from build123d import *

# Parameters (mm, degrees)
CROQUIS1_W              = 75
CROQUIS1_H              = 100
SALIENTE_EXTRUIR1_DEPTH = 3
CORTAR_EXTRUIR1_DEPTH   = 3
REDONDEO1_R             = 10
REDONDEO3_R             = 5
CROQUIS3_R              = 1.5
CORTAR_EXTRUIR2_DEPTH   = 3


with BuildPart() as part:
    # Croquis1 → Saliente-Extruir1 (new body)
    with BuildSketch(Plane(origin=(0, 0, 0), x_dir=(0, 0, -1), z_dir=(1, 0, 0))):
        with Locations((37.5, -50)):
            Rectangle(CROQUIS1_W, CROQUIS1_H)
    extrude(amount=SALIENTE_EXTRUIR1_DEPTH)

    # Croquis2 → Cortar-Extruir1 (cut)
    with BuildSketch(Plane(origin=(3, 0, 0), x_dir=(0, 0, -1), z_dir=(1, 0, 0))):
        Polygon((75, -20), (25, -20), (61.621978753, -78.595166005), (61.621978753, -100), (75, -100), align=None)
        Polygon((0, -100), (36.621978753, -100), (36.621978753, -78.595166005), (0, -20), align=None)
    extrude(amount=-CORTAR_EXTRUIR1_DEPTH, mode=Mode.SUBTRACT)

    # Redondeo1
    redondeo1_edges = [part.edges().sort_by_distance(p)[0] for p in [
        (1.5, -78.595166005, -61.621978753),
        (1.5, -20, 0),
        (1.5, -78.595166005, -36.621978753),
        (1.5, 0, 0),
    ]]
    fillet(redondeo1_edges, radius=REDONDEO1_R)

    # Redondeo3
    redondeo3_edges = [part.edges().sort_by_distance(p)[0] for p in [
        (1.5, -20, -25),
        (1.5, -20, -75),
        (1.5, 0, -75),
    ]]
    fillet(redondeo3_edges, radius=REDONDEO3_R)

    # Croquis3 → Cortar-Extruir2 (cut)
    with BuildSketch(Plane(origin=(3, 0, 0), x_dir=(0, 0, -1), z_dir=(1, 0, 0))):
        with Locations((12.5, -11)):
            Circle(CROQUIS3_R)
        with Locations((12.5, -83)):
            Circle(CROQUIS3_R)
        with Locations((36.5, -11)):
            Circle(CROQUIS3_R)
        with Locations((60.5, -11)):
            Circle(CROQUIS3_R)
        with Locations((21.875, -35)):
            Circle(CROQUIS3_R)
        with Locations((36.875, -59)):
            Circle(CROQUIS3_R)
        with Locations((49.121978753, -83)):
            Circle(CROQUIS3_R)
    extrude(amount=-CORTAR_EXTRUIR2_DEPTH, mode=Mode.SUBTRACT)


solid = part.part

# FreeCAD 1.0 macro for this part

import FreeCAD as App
import Part
import Sketcher
from FreeCAD import Vector


def edges_at(feature, points):
    """Names of the edges that pass closest to the given points."""
    edges = feature.Shape.Edges
    near = lambda p: min(range(len(edges)), key=lambda i: edges[i].distToShape(Part.Vertex(*p))[0])
    return sorted({f"Edge{near(p) + 1}" for p in points})

doc = App.newDocument("Part")
body = doc.addObject("PartDesign::Body", "Body")

sketch1 = body.newObject("Sketcher::SketchObject", "Sketch")
sketch1.AttachmentSupport = (doc.getObject("YZ_Plane"), [""])
sketch1.MapMode = "FlatFace"
sketch1.addGeometry([
    Part.LineSegment(Vector(0, 0, 0), Vector(-100, 0, 0)),
    Part.LineSegment(Vector(-100, 0, 0), Vector(-100, -75, 0)),
    Part.LineSegment(Vector(-100, -75, 0), Vector(0, -75, 0)),
    Part.LineSegment(Vector(0, -75, 0), Vector(0, 0, 0)),
], False)
sketch1.addConstraint([
    Sketcher.Constraint("Coincident", 0, 2, 1, 1),
    Sketcher.Constraint("Coincident", 1, 2, 2, 1),
    Sketcher.Constraint("Coincident", 2, 2, 3, 1),
    Sketcher.Constraint("Coincident", 3, 2, 0, 1),
    Sketcher.Constraint("Horizontal", 0),
    Sketcher.Constraint("Vertical", 1),
    Sketcher.Constraint("Horizontal", 2),
    Sketcher.Constraint("Vertical", 3),
    Sketcher.Constraint("Coincident", 3, 2, -1, 1),
    Sketcher.Constraint("DistanceX", 0, 2, 0, 1, 100.0),
    Sketcher.Constraint("DistanceY", 1, 2, 1, 1, 75.0),
])
pad1 = body.newObject("PartDesign::Pad", "Pad")
pad1.Profile = sketch1
pad1.Length = 3

sketch2 = body.newObject("Sketcher::SketchObject", "Sketch001")
sketch2.AttachmentSupport = (doc.getObject("YZ_Plane"), [""])
sketch2.MapMode = "FlatFace"
sketch2.AttachmentOffset = App.Placement(Vector(0, 0, 3), App.Rotation())
sketch2.addGeometry([
    Part.LineSegment(Vector(-20, -75, 0), Vector(-20, -25, 0)),
    Part.LineSegment(Vector(-20, -25, 0), Vector(-79, -62, 0)),
    Part.LineSegment(Vector(-79, -62, 0), Vector(-100, -62, 0)),
    Part.LineSegment(Vector(-100, -62, 0), Vector(-100, -75, 0)),
    Part.LineSegment(Vector(-100, -75, 0), Vector(-20, -75, 0)),
    Part.LineSegment(Vector(-100, 0, 0), Vector(-100, -37, 0)),
    Part.LineSegment(Vector(-100, -37, 0), Vector(-79, -37, 0)),
    Part.LineSegment(Vector(-79, -37, 0), Vector(-20, 0, 0)),
    Part.LineSegment(Vector(-20, 0, 0), Vector(-100, 0, 0)),
], False)
sketch2.addConstraint([
    Sketcher.Constraint("Coincident", 0, 2, 1, 1),
    Sketcher.Constraint("Coincident", 1, 2, 2, 1),
    Sketcher.Constraint("Coincident", 2, 2, 3, 1),
    Sketcher.Constraint("Coincident", 3, 2, 4, 1),
    Sketcher.Constraint("Coincident", 4, 2, 0, 1),
    Sketcher.Constraint("Coincident", 5, 2, 6, 1),
    Sketcher.Constraint("Coincident", 6, 2, 7, 1),
    Sketcher.Constraint("Coincident", 7, 2, 8, 1),
    Sketcher.Constraint("Coincident", 8, 2, 5, 1),
    Sketcher.Constraint("Vertical", 0),
    Sketcher.Constraint("Horizontal", 2),
    Sketcher.Constraint("Vertical", 3),
    Sketcher.Constraint("Horizontal", 4),
    Sketcher.Constraint("Vertical", 5),
    Sketcher.Constraint("Horizontal", 6),
    Sketcher.Constraint("Horizontal", 8),
    Sketcher.Constraint("PointOnObject", 7, 2, -1),
    Sketcher.Constraint("Parallel", 1, 7),
    Sketcher.Constraint("Vertical", 3, 2, 5, 2),
    Sketcher.Constraint("Vertical", 1, 2, 6, 2),
    Sketcher.Constraint("Vertical", 4, 2, 7, 2),
    Sketcher.Constraint("DistanceX", 4, 1, 4, 2, 80.0),
    Sketcher.Constraint("DistanceY", 0, 1, 0, 2, 50.0),
    Sketcher.Constraint("DistanceX", 0, 2, -1, 1, 20.0),
    Sketcher.Constraint("DistanceY", 0, 2, -1, 1, 25.0),
    Sketcher.Constraint("DistanceY", 3, 2, 3, 1, 13.378021),
    Sketcher.Constraint("Distance", 1, 69.098211),
])
pocket1 = body.newObject("PartDesign::Pocket", "Pocket")
pocket1.Profile = sketch2
pocket1.Length = 3
doc.recompute()

fillet = body.newObject("PartDesign::Fillet", "Fillet")
fillet.Base = (pocket1, edges_at(pocket1, [
    (1.5, -78.595, -61.622),
    (1.5, -20, 0),
    (1.5, -78.595, -36.622),
    (1.5, 0, 0),
]))
fillet.Radius = 10
doc.recompute()

fillet2 = body.newObject("PartDesign::Fillet", "Fillet001")
fillet2.Base = (fillet, edges_at(fillet, [(1.5, -20, -25), (1.5, -20, -75), (1.5, 0, -75)]))
fillet2.Radius = 5

sketch3 = body.newObject("Sketcher::SketchObject", "Sketch002")
sketch3.AttachmentSupport = (doc.getObject("YZ_Plane"), [""])
sketch3.MapMode = "FlatFace"
sketch3.AttachmentOffset = App.Placement(Vector(0, 0, 3), App.Rotation())
sketch3.addGeometry([
    Part.Circle(Vector(-11, -12.5, 0), Vector(0, 0, 1), 1.5),
    Part.Circle(Vector(-83, -12.5, 0), Vector(0, 0, 1), 1.5),
    Part.Circle(Vector(-11, -36.5, 0), Vector(0, 0, 1), 1.5),
    Part.Circle(Vector(-11, -60.5, 0), Vector(0, 0, 1), 1.5),
    Part.Circle(Vector(-35, -21.9, 0), Vector(0, 0, 1), 1.5),
    Part.Circle(Vector(-59, -36.9, 0), Vector(0, 0, 1), 1.5),
    Part.Circle(Vector(-83, -49.1, 0), Vector(0, 0, 1), 1.5),
], False)
sketch3.addConstraint([
    Sketcher.Constraint("Equal", 0, 1),
    Sketcher.Constraint("Equal", 1, 2),
    Sketcher.Constraint("Equal", 2, 3),
    Sketcher.Constraint("Equal", 3, 4),
    Sketcher.Constraint("Equal", 4, 5),
    Sketcher.Constraint("Equal", 5, 6),
    Sketcher.Constraint("Horizontal", 0, 3, 1, 3),
    Sketcher.Constraint("Vertical", 0, 3, 2, 3),
    Sketcher.Constraint("Vertical", 2, 3, 3, 3),
    Sketcher.Constraint("Vertical", 1, 3, 6, 3),
    Sketcher.Constraint("Diameter", 0, 3.0),
    Sketcher.Constraint("DistanceX", 0, 3, -1, 1, 11.0),
    Sketcher.Constraint("DistanceX", 1, 3, -1, 1, 83.0),
    Sketcher.Constraint("DistanceX", 4, 3, -1, 1, 35.0),
    Sketcher.Constraint("DistanceX", 5, 3, -1, 1, 59.0),
    Sketcher.Constraint("DistanceY", 2, 3, 0, 3, 24.0),
    Sketcher.Constraint("DistanceY", 3, 3, 2, 3, 24.0),
    Sketcher.Constraint("DistanceY", 5, 3, 4, 3, 15.0),
    Sketcher.Constraint("DistanceY", 0, 3, -1, 1, 12.5),
    Sketcher.Constraint("DistanceY", 4, 3, -1, 1, 21.875),
    Sketcher.Constraint("DistanceY", 6, 3, -1, 1, 49.121979),
])
pocket2 = body.newObject("PartDesign::Pocket", "Pocket001")
pocket2.Profile = sketch3
pocket2.Length = 3

doc.recompute()
